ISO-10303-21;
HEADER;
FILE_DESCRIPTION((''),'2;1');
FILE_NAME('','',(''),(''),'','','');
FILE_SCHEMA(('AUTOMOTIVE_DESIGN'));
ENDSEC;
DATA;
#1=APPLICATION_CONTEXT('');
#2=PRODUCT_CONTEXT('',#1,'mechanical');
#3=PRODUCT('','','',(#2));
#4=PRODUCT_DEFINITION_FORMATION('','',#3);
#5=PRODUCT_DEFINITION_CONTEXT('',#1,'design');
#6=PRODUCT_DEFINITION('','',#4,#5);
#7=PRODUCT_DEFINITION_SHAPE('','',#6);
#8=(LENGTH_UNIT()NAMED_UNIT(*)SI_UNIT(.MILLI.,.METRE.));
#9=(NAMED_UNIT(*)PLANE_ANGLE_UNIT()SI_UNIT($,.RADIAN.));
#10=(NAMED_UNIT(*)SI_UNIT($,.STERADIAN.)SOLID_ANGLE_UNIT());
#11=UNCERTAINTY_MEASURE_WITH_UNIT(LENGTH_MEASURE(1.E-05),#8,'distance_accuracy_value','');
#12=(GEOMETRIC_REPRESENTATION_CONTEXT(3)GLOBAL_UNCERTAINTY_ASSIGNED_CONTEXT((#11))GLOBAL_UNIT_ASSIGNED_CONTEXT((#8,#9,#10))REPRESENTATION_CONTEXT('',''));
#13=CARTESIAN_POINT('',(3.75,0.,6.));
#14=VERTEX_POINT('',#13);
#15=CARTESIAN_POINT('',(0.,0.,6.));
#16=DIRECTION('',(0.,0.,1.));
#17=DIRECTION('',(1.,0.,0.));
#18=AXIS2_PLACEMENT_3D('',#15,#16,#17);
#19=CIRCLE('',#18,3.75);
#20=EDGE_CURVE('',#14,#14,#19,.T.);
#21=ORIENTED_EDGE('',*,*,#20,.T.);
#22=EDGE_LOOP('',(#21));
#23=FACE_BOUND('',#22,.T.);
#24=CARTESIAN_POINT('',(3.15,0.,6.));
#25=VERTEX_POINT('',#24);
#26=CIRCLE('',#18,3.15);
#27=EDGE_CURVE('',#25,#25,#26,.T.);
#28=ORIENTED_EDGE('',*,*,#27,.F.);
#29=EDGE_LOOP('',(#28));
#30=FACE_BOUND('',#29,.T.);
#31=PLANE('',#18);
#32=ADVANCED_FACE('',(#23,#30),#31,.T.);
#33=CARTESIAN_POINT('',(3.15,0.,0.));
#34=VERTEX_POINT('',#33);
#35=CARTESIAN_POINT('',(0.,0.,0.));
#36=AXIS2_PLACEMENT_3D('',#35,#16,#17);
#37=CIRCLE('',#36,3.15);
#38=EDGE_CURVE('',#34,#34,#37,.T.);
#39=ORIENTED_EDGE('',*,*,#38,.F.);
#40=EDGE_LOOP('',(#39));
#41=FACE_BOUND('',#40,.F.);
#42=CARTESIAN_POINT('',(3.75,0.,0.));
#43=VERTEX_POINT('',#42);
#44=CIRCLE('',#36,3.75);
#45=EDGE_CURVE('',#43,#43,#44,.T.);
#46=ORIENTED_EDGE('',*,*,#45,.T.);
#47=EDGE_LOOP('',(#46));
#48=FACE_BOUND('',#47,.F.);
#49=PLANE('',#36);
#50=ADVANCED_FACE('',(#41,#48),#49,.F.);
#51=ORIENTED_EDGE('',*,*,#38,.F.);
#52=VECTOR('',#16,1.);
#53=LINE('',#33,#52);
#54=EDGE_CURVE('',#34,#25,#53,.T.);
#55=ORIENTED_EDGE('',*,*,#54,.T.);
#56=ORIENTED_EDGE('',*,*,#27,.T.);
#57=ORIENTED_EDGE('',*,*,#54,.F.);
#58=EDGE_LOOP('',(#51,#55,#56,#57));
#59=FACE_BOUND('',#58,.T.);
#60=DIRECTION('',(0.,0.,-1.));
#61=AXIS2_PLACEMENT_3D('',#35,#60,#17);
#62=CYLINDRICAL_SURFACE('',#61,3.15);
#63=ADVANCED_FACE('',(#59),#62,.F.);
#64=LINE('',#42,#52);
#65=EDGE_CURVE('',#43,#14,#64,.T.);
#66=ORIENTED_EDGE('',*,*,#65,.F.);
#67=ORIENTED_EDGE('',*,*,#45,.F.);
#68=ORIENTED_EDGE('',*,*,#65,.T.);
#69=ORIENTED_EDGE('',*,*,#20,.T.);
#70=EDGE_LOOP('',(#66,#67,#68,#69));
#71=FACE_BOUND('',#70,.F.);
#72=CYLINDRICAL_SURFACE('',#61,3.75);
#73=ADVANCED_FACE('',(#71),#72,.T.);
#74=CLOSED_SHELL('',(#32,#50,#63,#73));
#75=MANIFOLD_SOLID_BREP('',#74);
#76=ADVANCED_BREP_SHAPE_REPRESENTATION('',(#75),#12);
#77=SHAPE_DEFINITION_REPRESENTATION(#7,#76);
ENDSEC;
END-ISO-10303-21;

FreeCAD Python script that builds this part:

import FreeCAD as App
import Part
import Sketcher
Q = App.Units.Quantity

doc = App.newDocument("Part")
body = doc.addObject("PartDesign::Body", "Body")

sketch1 = doc.addObject("Sketcher::SketchObject", "Sketch")
body.addObject(sketch1)
sketch1.AttachmentSupport = (doc.XY_Plane, [""])
sketch1.MapMode = "FlatFace"
sketch1.addGeometry([
    Part.Circle(App.Vector(0, 0, 0), App.Vector(0, 0, 1), 3.75),
    Part.Circle(App.Vector(0, 0, 0), App.Vector(0, 0, 1), 3.15),
], False)
sketch1.addConstraint([
    Sketcher.Constraint("Coincident", 0, 3, -1, 1),
    Sketcher.Constraint("Coincident", 1, 3, -1, 1),
    Sketcher.Constraint("Diameter", 0, Q("7.5 mm")),
    Sketcher.Constraint("Diameter", 1, Q("6.3 mm")),
])
pad1 = doc.addObject("PartDesign::Pad", "Pad")
body.addObject(pad1)
pad1.Profile = sketch1
pad1.Length = 6

doc.recompute()
